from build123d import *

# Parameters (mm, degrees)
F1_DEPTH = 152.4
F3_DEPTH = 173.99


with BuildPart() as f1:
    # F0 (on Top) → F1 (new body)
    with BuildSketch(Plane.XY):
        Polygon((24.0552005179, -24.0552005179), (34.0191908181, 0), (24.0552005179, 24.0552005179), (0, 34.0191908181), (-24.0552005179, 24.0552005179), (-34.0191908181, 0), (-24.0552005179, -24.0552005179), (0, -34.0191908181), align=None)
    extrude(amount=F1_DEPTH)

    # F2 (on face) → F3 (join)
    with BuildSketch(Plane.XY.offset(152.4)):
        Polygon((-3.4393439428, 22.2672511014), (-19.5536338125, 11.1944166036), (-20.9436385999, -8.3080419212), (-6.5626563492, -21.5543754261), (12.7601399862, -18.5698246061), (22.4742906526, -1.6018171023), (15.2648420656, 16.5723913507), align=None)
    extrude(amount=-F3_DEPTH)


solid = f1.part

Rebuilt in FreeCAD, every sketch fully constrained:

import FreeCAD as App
import Part
import Sketcher
from FreeCAD import Vector
Q = App.Units.Quantity


def add_polygon(sketch, points):
    """Adds a closed chain of lines whose ends are joined by coincident constraints."""
    first, n = sketch.GeometryCount, len(points)
    for a, b in zip(points, points[1:] + points[:1]):
        sketch.addGeometry(Part.LineSegment(App.Vector(*a, 0), App.Vector(*b, 0)), False)
    for i in range(n):
        sketch.addConstraint(Sketcher.Constraint("Coincident", first + i, 2, first + (i + 1) % n, 1))

doc = App.newDocument("Part")
params = doc.addObject("Spreadsheet::Sheet", "Params")
for row, (alias, value) in enumerate([
    ("pad1_length", "6 in"),
    ("pad2_length", "6.85 in"),
], start=1):
    params.set(f"A{row}", alias)
    params.set(f"B{row}", "=" + value)
    params.setAlias(f"B{row}", alias)

body = doc.addObject("PartDesign::Body", "Body")

# Sketch on XY plane
sketch1 = body.newObject("Sketcher::SketchObject", "Sketch")
sketch1.AttachmentSupport = (doc.getObject("XY_Plane"), [""])
sketch1.MapMode = "FlatFace"
add_polygon(sketch1, [(24, -24), (34, 0), (24, 24), (0, 34), (-24, 24), (-34, 0), (-24, -24), (0, -34)])  # lines 0-7
sketch1.addConstraint([
    Sketcher.Constraint("Symmetric", 0, 2, 4, 2, -1, 1),
    Sketcher.Constraint("Symmetric", 1, 2, 5, 2, -1, 1),
    Sketcher.Constraint("Symmetric", 2, 2, 6, 2, -1, 1),
    Sketcher.Constraint("Symmetric", 3, 2, 7, 2, -1, 1),
    Sketcher.Constraint("Symmetric", 1, 2, 3, 2, -2),
    Sketcher.Constraint("PointOnObject", 0, 2, -1),
    Sketcher.Constraint("PointOnObject", 2, 2, -2),
    Sketcher.Constraint("Perpendicular", 0, 2),
    Sketcher.Constraint("Equal", 1, 2),
    Sketcher.Constraint("Angle", 0, Q("67.5 deg")),
    Sketcher.Constraint("DistanceX", -1, 1, 1, 2, Q("24.055201 mm")),
])
pad1 = body.newObject("PartDesign::Pad", "Pad")
pad1.Profile = sketch1
pad1.setExpression("Length", "Params.pad1_length")

# Sketch on XY plane
sketch2 = body.newObject("Sketcher::SketchObject", "Sketch001")
sketch2.AttachmentSupport = (doc.getObject("XY_Plane"), [""])
sketch2.MapMode = "FlatFace"
sketch2.AttachmentOffset = App.Placement(Vector(0, 0, 6 * 25.4), App.Rotation())
add_polygon(sketch2, [(-3, 22), (-20, 11), (-21, -8), (-7, -22), (13, -19), (22, -2), (15, 17)])  # lines 0-6
sketch2.addConstraint([
    Sketcher.Constraint("Equal", 0, 1),
    Sketcher.Constraint("Equal", 1, 2),
    Sketcher.Constraint("Equal", 2, 3),
    Sketcher.Constraint("Equal", 3, 4),
    Sketcher.Constraint("Equal", 4, 5),
    Sketcher.Constraint("Equal", 5, 6),
    Sketcher.Constraint("DistanceX", 2, 2, 5, 2, Q("21.827498 mm")),
    Sketcher.Constraint("Distance", 0, Q("19.551931 mm")),
    Sketcher.Constraint("DistanceX", 1, 2, -1, 1, Q("20.943639 mm")),
    Sketcher.Constraint("DistanceY", 1, 2, -1, 1, Q("8.308042 mm")),
    Sketcher.Constraint("DistanceX", -1, 1, 3, 2, Q("12.76014 mm")),
    Sketcher.Constraint("DistanceX", -1, 1, 4, 2, Q("22.474291 mm")),
    Sketcher.Constraint("DistanceY", -1, 1, 5, 2, Q("16.572391 mm")),
    Sketcher.Constraint("DistanceY", -1, 1, 6, 2, Q("22.267251 mm")),
])
pad2 = body.newObject("PartDesign::Pad", "Pad001")
pad2.Profile = sketch2
pad2.setExpression("Length", "Params.pad2_length")
pad2.Reversed = True

doc.recompute()
